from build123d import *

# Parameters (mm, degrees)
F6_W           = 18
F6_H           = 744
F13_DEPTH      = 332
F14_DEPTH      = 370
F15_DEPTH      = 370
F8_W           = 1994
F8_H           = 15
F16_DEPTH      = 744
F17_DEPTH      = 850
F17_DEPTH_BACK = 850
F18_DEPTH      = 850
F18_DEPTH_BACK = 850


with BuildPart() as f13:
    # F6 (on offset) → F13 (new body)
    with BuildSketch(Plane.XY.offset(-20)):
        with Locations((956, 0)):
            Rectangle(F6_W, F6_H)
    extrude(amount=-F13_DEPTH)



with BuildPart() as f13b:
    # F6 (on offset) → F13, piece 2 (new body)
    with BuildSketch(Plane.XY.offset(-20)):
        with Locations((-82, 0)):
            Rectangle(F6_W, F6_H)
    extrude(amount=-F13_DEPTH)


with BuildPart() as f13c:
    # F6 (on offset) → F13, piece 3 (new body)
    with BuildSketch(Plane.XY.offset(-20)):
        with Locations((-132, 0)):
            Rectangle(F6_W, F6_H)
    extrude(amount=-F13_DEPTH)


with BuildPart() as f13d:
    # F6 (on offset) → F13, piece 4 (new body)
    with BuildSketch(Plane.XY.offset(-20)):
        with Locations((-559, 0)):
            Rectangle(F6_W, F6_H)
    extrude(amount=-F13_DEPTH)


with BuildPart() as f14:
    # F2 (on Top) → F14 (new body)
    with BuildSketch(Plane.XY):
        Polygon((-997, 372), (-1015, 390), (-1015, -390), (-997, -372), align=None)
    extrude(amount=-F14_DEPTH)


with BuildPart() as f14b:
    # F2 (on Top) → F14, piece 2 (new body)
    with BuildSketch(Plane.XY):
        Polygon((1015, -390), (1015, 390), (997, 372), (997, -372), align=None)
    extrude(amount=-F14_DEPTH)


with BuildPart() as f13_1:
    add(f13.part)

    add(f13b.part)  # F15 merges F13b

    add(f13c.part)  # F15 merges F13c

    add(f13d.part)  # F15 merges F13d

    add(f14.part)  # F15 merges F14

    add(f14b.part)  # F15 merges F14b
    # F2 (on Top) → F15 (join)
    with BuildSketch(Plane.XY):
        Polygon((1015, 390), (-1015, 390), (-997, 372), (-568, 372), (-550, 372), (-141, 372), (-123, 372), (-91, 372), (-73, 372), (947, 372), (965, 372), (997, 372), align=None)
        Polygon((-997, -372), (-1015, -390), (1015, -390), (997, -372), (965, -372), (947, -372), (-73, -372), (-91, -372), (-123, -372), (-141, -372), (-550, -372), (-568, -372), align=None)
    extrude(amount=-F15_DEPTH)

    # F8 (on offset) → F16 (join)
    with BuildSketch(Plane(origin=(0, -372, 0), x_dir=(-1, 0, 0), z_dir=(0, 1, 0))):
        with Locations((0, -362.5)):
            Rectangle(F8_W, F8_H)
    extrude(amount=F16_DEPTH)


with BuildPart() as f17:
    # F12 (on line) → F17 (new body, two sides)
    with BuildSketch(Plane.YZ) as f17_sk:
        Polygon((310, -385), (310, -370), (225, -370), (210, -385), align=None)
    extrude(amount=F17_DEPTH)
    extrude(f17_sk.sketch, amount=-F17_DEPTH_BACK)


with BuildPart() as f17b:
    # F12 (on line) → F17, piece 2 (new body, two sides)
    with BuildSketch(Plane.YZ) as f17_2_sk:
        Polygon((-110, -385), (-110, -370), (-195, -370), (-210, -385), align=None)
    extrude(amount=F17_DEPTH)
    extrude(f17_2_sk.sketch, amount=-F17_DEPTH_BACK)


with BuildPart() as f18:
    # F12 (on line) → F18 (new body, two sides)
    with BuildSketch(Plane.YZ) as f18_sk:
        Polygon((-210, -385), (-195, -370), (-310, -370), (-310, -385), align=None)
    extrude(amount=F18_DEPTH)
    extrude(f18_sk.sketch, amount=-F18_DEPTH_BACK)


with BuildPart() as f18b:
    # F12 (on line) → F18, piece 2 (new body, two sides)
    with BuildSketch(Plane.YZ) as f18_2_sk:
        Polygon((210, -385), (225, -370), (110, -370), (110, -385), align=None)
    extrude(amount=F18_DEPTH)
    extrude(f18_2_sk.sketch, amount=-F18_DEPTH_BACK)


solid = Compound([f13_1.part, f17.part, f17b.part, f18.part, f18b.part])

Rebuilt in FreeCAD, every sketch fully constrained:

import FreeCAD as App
import Part
import Sketcher
from FreeCAD import Vector
Q = App.Units.Quantity


def add_polygon(sketch, points):
    """Adds a closed chain of lines whose ends are joined by coincident constraints."""
    first, n = sketch.GeometryCount, len(points)
    for a, b in zip(points, points[1:] + points[:1]):
        sketch.addGeometry(Part.LineSegment(App.Vector(*a, 0), App.Vector(*b, 0)), False)
    for i in range(n):
        sketch.addConstraint(Sketcher.Constraint("Coincident", first + i, 2, first + (i + 1) % n, 1))

doc = App.newDocument("Part")
params = doc.addObject("Spreadsheet::Sheet", "Params")
for row, (alias, value) in enumerate([
    ("sketch1_width", "18 mm"),
    ("sketch1_height", "744 mm"),
    ("pad1_length", "332 mm"),
    ("sketch2_width", "18 mm"),
    ("sketch2_height", "744 mm"),
    ("pad2_length", "332 mm"),
    ("sketch3_width", "18 mm"),
    ("sketch3_height", "744 mm"),
    ("pad3_length", "332 mm"),
    ("sketch4_width", "18 mm"),
    ("sketch4_height", "744 mm"),
    ("pad4_length", "332 mm"),
    ("sketch5_height", "780 mm"),
    ("sketch5_height2", "744 mm"),
    ("pad5_length", "370 mm"),
    ("sketch6_height", "780 mm"),
    ("sketch6_height2", "744 mm"),
    ("pad6_length", "370 mm"),
    ("sketch7_width", "2030 mm"),
    ("sketch7_width2", "1994 mm"),
    ("pad7_length", "370 mm"),
    ("sketch8_width", "1994 mm"),
    ("sketch8_height", "15 mm"),
    ("pad8_length", "744 mm"),
    ("sketch9_width", "85 mm"),
    ("sketch9_width2", "100 mm"),
    ("sketch9_height", "15 mm"),
    ("pad9_length", "850 mm"),
    ("pad9_length2", "850 mm"),
    ("sketch10_width", "85 mm"),
    ("sketch10_width2", "100 mm"),
    ("sketch10_height", "15 mm"),
    ("pad10_length", "850 mm"),
    ("pad10_length2", "850 mm"),
    ("sketch11_width", "115 mm"),
    ("sketch11_width2", "100 mm"),
    ("sketch11_height", "15 mm"),
    ("pad11_length", "850 mm"),
    ("pad11_length2", "850 mm"),
    ("sketch12_width", "115 mm"),
    ("sketch12_width2", "100 mm"),
    ("sketch12_height", "15 mm"),
    ("pad12_length", "850 mm"),
    ("pad12_length2", "850 mm"),
], start=1):
    params.set(f"A{row}", alias)
    params.set(f"B{row}", "=" + value)
    params.setAlias(f"B{row}", alias)

body = doc.addObject("PartDesign::Body", "Body")

# Sketch on XY plane
sketch1 = body.newObject("Sketcher::SketchObject", "Sketch")
sketch1.AttachmentSupport = (doc.getObject("XY_Plane"), [""])
sketch1.MapMode = "FlatFace"
sketch1.AttachmentOffset = App.Placement(Vector(0, 0, -20), App.Rotation())
add_polygon(sketch1, [(947, 372), (947, -372), (965, -372), (965, 372)])  # lines 0-3
sketch1.addConstraint(Sketcher.Constraint("Vertical", 0))
sketch1.addConstraint(Sketcher.Constraint("Horizontal", 1))
sketch1.addConstraint(Sketcher.Constraint("Vertical", 2))
sketch1.addConstraint(Sketcher.Constraint("Horizontal", 3))
sketch1.addConstraint(Sketcher.Constraint("DistanceX", 1, 1, 1, 2, Q("18 mm")))
sketch1.addConstraint(Sketcher.Constraint("DistanceY", 0, 2, 0, 1, Q("744 mm")))
sketch1.addConstraint(Sketcher.Constraint("DistanceX", -1, 1, 0, 2, Q("947 mm")))
sketch1.addConstraint(Sketcher.Constraint("DistanceY", 0, 2, -1, 1, Q("372 mm")))
sketch1.setExpression("Constraints[8]", "Params.sketch1_width")
sketch1.setExpression("Constraints[9]", "Params.sketch1_height")
pad1 = body.newObject("PartDesign::Pad", "Pad")
pad1.Profile = sketch1
pad1.setExpression("Length", "Params.pad1_length")
pad1.Reversed = True
body2 = doc.addObject("PartDesign::Body", "Body001")

# Sketch on XY plane
sketch2 = body2.newObject("Sketcher::SketchObject", "Sketch001")
sketch2.AttachmentSupport = (doc.getObject("XY_Plane001"), [""])
sketch2.MapMode = "FlatFace"
sketch2.AttachmentOffset = App.Placement(Vector(0, 0, -20), App.Rotation())
add_polygon(sketch2, [(-91, 372), (-91, -372), (-73, -372), (-73, 372)])  # lines 0-3
sketch2.addConstraint(Sketcher.Constraint("Vertical", 0))
sketch2.addConstraint(Sketcher.Constraint("Horizontal", 1))
sketch2.addConstraint(Sketcher.Constraint("Vertical", 2))
sketch2.addConstraint(Sketcher.Constraint("Horizontal", 3))
sketch2.addConstraint(Sketcher.Constraint("DistanceX", 1, 1, 1, 2, Q("18 mm")))
sketch2.addConstraint(Sketcher.Constraint("DistanceY", 0, 2, 0, 1, Q("744 mm")))
sketch2.addConstraint(Sketcher.Constraint("DistanceX", 0, 2, -1, 1, Q("91 mm")))
sketch2.addConstraint(Sketcher.Constraint("DistanceY", 0, 2, -1, 1, Q("372 mm")))
sketch2.setExpression("Constraints[8]", "Params.sketch2_width")
sketch2.setExpression("Constraints[9]", "Params.sketch2_height")
pad2 = body2.newObject("PartDesign::Pad", "Pad001")
pad2.Profile = sketch2
pad2.setExpression("Length", "Params.pad2_length")
pad2.Reversed = True
body3 = doc.addObject("PartDesign::Body", "Body002")

# Sketch on XY plane
sketch3 = body3.newObject("Sketcher::SketchObject", "Sketch002")
sketch3.AttachmentSupport = (doc.getObject("XY_Plane002"), [""])
sketch3.MapMode = "FlatFace"
sketch3.AttachmentOffset = App.Placement(Vector(0, 0, -20), App.Rotation())
add_polygon(sketch3, [(-141, 372), (-141, -372), (-123, -372), (-123, 372)])  # lines 0-3
sketch3.addConstraint(Sketcher.Constraint("Vertical", 0))
sketch3.addConstraint(Sketcher.Constraint("Horizontal", 1))
sketch3.addConstraint(Sketcher.Constraint("Vertical", 2))
sketch3.addConstraint(Sketcher.Constraint("Horizontal", 3))
sketch3.addConstraint(Sketcher.Constraint("DistanceX", 1, 1, 1, 2, Q("18 mm")))
sketch3.addConstraint(Sketcher.Constraint("DistanceY", 0, 2, 0, 1, Q("744 mm")))
sketch3.addConstraint(Sketcher.Constraint("DistanceX", 0, 2, -1, 1, Q("141 mm")))
sketch3.addConstraint(Sketcher.Constraint("DistanceY", 0, 2, -1, 1, Q("372 mm")))
sketch3.setExpression("Constraints[8]", "Params.sketch3_width")
sketch3.setExpression("Constraints[9]", "Params.sketch3_height")
pad3 = body3.newObject("PartDesign::Pad", "Pad002")
pad3.Profile = sketch3
pad3.setExpression("Length", "Params.pad3_length")
pad3.Reversed = True
body4 = doc.addObject("PartDesign::Body", "Body003")

# Sketch on XY plane
sketch4 = body4.newObject("Sketcher::SketchObject", "Sketch003")
sketch4.AttachmentSupport = (doc.getObject("XY_Plane003"), [""])
sketch4.MapMode = "FlatFace"
sketch4.AttachmentOffset = App.Placement(Vector(0, 0, -20), App.Rotation())
add_polygon(sketch4, [(-568, 372), (-568, -372), (-550, -372), (-550, 372)])  # lines 0-3
sketch4.addConstraint(Sketcher.Constraint("Vertical", 0))
sketch4.addConstraint(Sketcher.Constraint("Horizontal", 1))
sketch4.addConstraint(Sketcher.Constraint("Vertical", 2))
sketch4.addConstraint(Sketcher.Constraint("Horizontal", 3))
sketch4.addConstraint(Sketcher.Constraint("DistanceX", 1, 1, 1, 2, Q("18 mm")))
sketch4.addConstraint(Sketcher.Constraint("DistanceY", 0, 2, 0, 1, Q("744 mm")))
sketch4.addConstraint(Sketcher.Constraint("DistanceX", 0, 2, -1, 1, Q("568 mm")))
sketch4.addConstraint(Sketcher.Constraint("DistanceY", 0, 2, -1, 1, Q("372 mm")))
sketch4.setExpression("Constraints[8]", "Params.sketch4_width")
sketch4.setExpression("Constraints[9]", "Params.sketch4_height")
pad4 = body4.newObject("PartDesign::Pad", "Pad003")
pad4.Profile = sketch4
pad4.setExpression("Length", "Params.pad4_length")
pad4.Reversed = True
body5 = doc.addObject("PartDesign::Body", "Body004")

# Sketch on XY plane
sketch5 = body5.newObject("Sketcher::SketchObject", "Sketch004")
sketch5.AttachmentSupport = (doc.getObject("XY_Plane004"), [""])
sketch5.MapMode = "FlatFace"
add_polygon(sketch5, [(-997, 372), (-1015, 390), (-1015, -390), (-997, -372)])  # lines 0-3
sketch5.addConstraint(Sketcher.Constraint("Vertical", 1))
sketch5.addConstraint(Sketcher.Constraint("Vertical", 3))
sketch5.addConstraint(Sketcher.Constraint("Perpendicular", 0, 2))
sketch5.addConstraint(Sketcher.Constraint("Equal", 0, 2))
sketch5.addConstraint(Sketcher.Constraint("DistanceY", 1, 2, 1, 1, Q("780 mm")))
sketch5.addConstraint(Sketcher.Constraint("DistanceY", 3, 1, 3, 2, Q("744 mm")))
sketch5.addConstraint(Sketcher.Constraint("DistanceX", 0, 2, -1, 1, Q("1015 mm")))
sketch5.addConstraint(Sketcher.Constraint("DistanceY", -1, 1, 0, 2, Q("390 mm")))
sketch5.setExpression("Constraints[8]", "Params.sketch5_height")
sketch5.setExpression("Constraints[9]", "Params.sketch5_height2")
pad5 = body5.newObject("PartDesign::Pad", "Pad004")
pad5.Profile = sketch5
pad5.setExpression("Length", "Params.pad5_length")
pad5.Reversed = True
body6 = doc.addObject("PartDesign::Body", "Body005")

# Sketch on XY plane
sketch6 = body6.newObject("Sketcher::SketchObject", "Sketch005")
sketch6.AttachmentSupport = (doc.getObject("XY_Plane005"), [""])
sketch6.MapMode = "FlatFace"
add_polygon(sketch6, [(1015, -390), (1015, 390), (997, 372), (997, -372)])  # lines 0-3
sketch6.addConstraint(Sketcher.Constraint("Vertical", 0))
sketch6.addConstraint(Sketcher.Constraint("Vertical", 2))
sketch6.addConstraint(Sketcher.Constraint("Perpendicular", 1, 3))
sketch6.addConstraint(Sketcher.Constraint("Equal", 1, 3))
sketch6.addConstraint(Sketcher.Constraint("DistanceY", 0, 1, 0, 2, Q("780 mm")))
sketch6.addConstraint(Sketcher.Constraint("DistanceY", 2, 2, 2, 1, Q("744 mm")))
sketch6.addConstraint(Sketcher.Constraint("DistanceX", -1, 1, 0, 2, Q("1015 mm")))
sketch6.addConstraint(Sketcher.Constraint("DistanceY", -1, 1, 0, 2, Q("390 mm")))
sketch6.setExpression("Constraints[8]", "Params.sketch6_height")
sketch6.setExpression("Constraints[9]", "Params.sketch6_height2")
pad6 = body6.newObject("PartDesign::Pad", "Pad005")
pad6.Profile = sketch6
pad6.setExpression("Length", "Params.pad6_length")
pad6.Reversed = True
body.AllowCompound = True
doc.recompute()

boolean = body.newObject("PartDesign::Boolean", "Boolean")
boolean.Type = "Fuse"
boolean.addObjects([body2])
doc.recompute()

boolean2 = body.newObject("PartDesign::Boolean", "Boolean001")
boolean2.Type = "Fuse"
boolean2.addObjects([body3])
doc.recompute()

boolean3 = body.newObject("PartDesign::Boolean", "Boolean002")
boolean3.Type = "Fuse"
boolean3.addObjects([body4])
doc.recompute()

boolean4 = body.newObject("PartDesign::Boolean", "Boolean003")
boolean4.Type = "Fuse"
boolean4.addObjects([body5])
doc.recompute()

boolean5 = body.newObject("PartDesign::Boolean", "Boolean004")
boolean5.Type = "Fuse"
boolean5.addObjects([body6])

# Sketch on XY plane
sketch7 = body.newObject("Sketcher::SketchObject", "Sketch006")
sketch7.AttachmentSupport = (doc.getObject("XY_Plane"), [""])
sketch7.MapMode = "FlatFace"
add_polygon(sketch7, [(1015, 390), (-1015, 390), (-997, 372), (997, 372)])  # lines 0-3
add_polygon(sketch7, [(-997, -372), (-1015, -390), (1015, -390), (997, -372)])  # lines 4-7
sketch7.addConstraint(Sketcher.Constraint("Horizontal", 0))
sketch7.addConstraint(Sketcher.Constraint("Horizontal", 2))
sketch7.addConstraint(Sketcher.Constraint("Horizontal", 5))
sketch7.addConstraint(Sketcher.Constraint("Horizontal", 7))
sketch7.addConstraint(Sketcher.Constraint("Symmetric", 3, 2, 4, 2, -1, 1))
sketch7.addConstraint(Sketcher.Constraint("Symmetric", 1, 2, 6, 2, -1, 1))
sketch7.addConstraint(Sketcher.Constraint("Perpendicular", 1, 3))
sketch7.addConstraint(Sketcher.Constraint("Parallel", 3, 4))
sketch7.addConstraint(Sketcher.Constraint("Perpendicular", 4, 6))
sketch7.addConstraint(Sketcher.Constraint("Vertical", 0, 2, 4, 2))
sketch7.addConstraint(Sketcher.Constraint("Vertical", 2, 2, 6, 2))
sketch7.addConstraint(Sketcher.Constraint("DistanceX", 0, 2, 0, 1, Q("2030 mm")))
sketch7.addConstraint(Sketcher.Constraint("DistanceX", 2, 1, 2, 2, Q("1994 mm")))
sketch7.addConstraint(Sketcher.Constraint("DistanceY", -1, 1, 0, 2, Q("390 mm")))
sketch7.setExpression("Constraints[19]", "Params.sketch7_width")
sketch7.setExpression("Constraints[20]", "Params.sketch7_width2")
pad7 = body.newObject("PartDesign::Pad", "Pad006")
pad7.Profile = sketch7
pad7.setExpression("Length", "Params.pad7_length")
pad7.Reversed = True

# Sketch on XZ plane
sketch8 = body.newObject("Sketcher::SketchObject", "Sketch007")
sketch8.AttachmentSupport = (doc.getObject("XZ_Plane"), [""])
sketch8.MapMode = "FlatFace"
sketch8.AttachmentOffset = App.Placement(Vector(0, 0, 372), App.Rotation())
add_polygon(sketch8, [(997, -355), (997, -370), (-997, -370), (-997, -355)])  # lines 0-3
sketch8.addConstraint(Sketcher.Constraint("Vertical", 0))
sketch8.addConstraint(Sketcher.Constraint("Horizontal", 1))
sketch8.addConstraint(Sketcher.Constraint("Vertical", 2))
sketch8.addConstraint(Sketcher.Constraint("Horizontal", 3))
sketch8.addConstraint(Sketcher.Constraint("DistanceX", 1, 2, 1, 1, Q("1994 mm")))
sketch8.addConstraint(Sketcher.Constraint("DistanceY", 0, 2, 0, 1, Q("15 mm")))
sketch8.addConstraint(Sketcher.Constraint("DistanceX", -1, 1, 0, 2, Q("997 mm")))
sketch8.addConstraint(Sketcher.Constraint("DistanceY", 0, 2, -1, 1, Q("370 mm")))
sketch8.setExpression("Constraints[8]", "Params.sketch8_width")
sketch8.setExpression("Constraints[9]", "Params.sketch8_height")
pad8 = body.newObject("PartDesign::Pad", "Pad007")
pad8.Profile = sketch8
pad8.setExpression("Length", "Params.pad8_length")
pad8.Reversed = True
body7 = doc.addObject("PartDesign::Body", "Body006")

# Sketch on YZ plane
sketch9 = body7.newObject("Sketcher::SketchObject", "Sketch008")
sketch9.AttachmentSupport = (doc.getObject("YZ_Plane006"), [""])
sketch9.MapMode = "FlatFace"
add_polygon(sketch9, [(310, -385), (310, -370), (225, -370), (210, -385)])  # lines 0-3
sketch9.addConstraint(Sketcher.Constraint("Vertical", 0))
sketch9.addConstraint(Sketcher.Constraint("Horizontal", 1))
sketch9.addConstraint(Sketcher.Constraint("Horizontal", 3))
sketch9.addConstraint(Sketcher.Constraint("DistanceX", 1, 2, 1, 1, Q("85 mm")))
sketch9.addConstraint(Sketcher.Constraint("DistanceX", 3, 1, 3, 2, Q("100 mm")))
sketch9.addConstraint(Sketcher.Constraint("DistanceY", 0, 1, 0, 2, Q("15 mm")))
sketch9.addConstraint(Sketcher.Constraint("DistanceX", -1, 1, 0, 2, Q("310 mm")))
sketch9.addConstraint(Sketcher.Constraint("DistanceY", 0, 2, -1, 1, Q("370 mm")))
sketch9.setExpression("Constraints[7]", "Params.sketch9_width")
sketch9.setExpression("Constraints[8]", "Params.sketch9_width2")
sketch9.setExpression("Constraints[9]", "Params.sketch9_height")
pad9 = body7.newObject("PartDesign::Pad", "Pad008")
pad9.Profile = sketch9
pad9.Type = "TwoLengths"
pad9.setExpression("Length", "Params.pad9_length")
pad9.setExpression("Length2", "Params.pad9_length2")
body8 = doc.addObject("PartDesign::Body", "Body007")

# Sketch on YZ plane
sketch10 = body8.newObject("Sketcher::SketchObject", "Sketch009")
sketch10.AttachmentSupport = (doc.getObject("YZ_Plane007"), [""])
sketch10.MapMode = "FlatFace"
add_polygon(sketch10, [(-110, -385), (-110, -370), (-195, -370), (-210, -385)])  # lines 0-3
sketch10.addConstraint(Sketcher.Constraint("Vertical", 0))
sketch10.addConstraint(Sketcher.Constraint("Horizontal", 1))
sketch10.addConstraint(Sketcher.Constraint("Horizontal", 3))
sketch10.addConstraint(Sketcher.Constraint("DistanceX", 1, 2, 1, 1, Q("85 mm")))
sketch10.addConstraint(Sketcher.Constraint("DistanceX", 3, 1, 3, 2, Q("100 mm")))
sketch10.addConstraint(Sketcher.Constraint("DistanceY", 0, 1, 0, 2, Q("15 mm")))
sketch10.addConstraint(Sketcher.Constraint("DistanceX", 0, 2, -1, 1, Q("110 mm")))
sketch10.addConstraint(Sketcher.Constraint("DistanceY", 0, 2, -1, 1, Q("370 mm")))
sketch10.setExpression("Constraints[7]", "Params.sketch10_width")
sketch10.setExpression("Constraints[8]", "Params.sketch10_width2")
sketch10.setExpression("Constraints[9]", "Params.sketch10_height")
pad10 = body8.newObject("PartDesign::Pad", "Pad009")
pad10.Profile = sketch10
pad10.Type = "TwoLengths"
pad10.setExpression("Length", "Params.pad10_length")
pad10.setExpression("Length2", "Params.pad10_length2")
body9 = doc.addObject("PartDesign::Body", "Body008")

# Sketch on YZ plane
sketch11 = body9.newObject("Sketcher::SketchObject", "Sketch010")
sketch11.AttachmentSupport = (doc.getObject("YZ_Plane008"), [""])
sketch11.MapMode = "FlatFace"
add_polygon(sketch11, [(-210, -385), (-195, -370), (-310, -370), (-310, -385)])  # lines 0-3
sketch11.addConstraint(Sketcher.Constraint("Horizontal", 1))
sketch11.addConstraint(Sketcher.Constraint("Vertical", 2))
sketch11.addConstraint(Sketcher.Constraint("Horizontal", 3))
sketch11.addConstraint(Sketcher.Constraint("DistanceX", 1, 2, 1, 1, Q("115 mm")))
sketch11.addConstraint(Sketcher.Constraint("DistanceX", 3, 1, 3, 2, Q("100 mm")))
sketch11.addConstraint(Sketcher.Constraint("DistanceY", 2, 2, 2, 1, Q("15 mm")))
sketch11.addConstraint(Sketcher.Constraint("DistanceX", 0, 2, -1, 1, Q("195 mm")))
sketch11.addConstraint(Sketcher.Constraint("DistanceY", 0, 2, -1, 1, Q("370 mm")))
sketch11.setExpression("Constraints[7]", "Params.sketch11_width")
sketch11.setExpression("Constraints[8]", "Params.sketch11_width2")
sketch11.setExpression("Constraints[9]", "Params.sketch11_height")
pad11 = body9.newObject("PartDesign::Pad", "Pad010")
pad11.Profile = sketch11
pad11.Type = "TwoLengths"
pad11.setExpression("Length", "Params.pad11_length")
pad11.setExpression("Length2", "Params.pad11_length2")
body10 = doc.addObject("PartDesign::Body", "Body009")

# Sketch on YZ plane
sketch12 = body10.newObject("Sketcher::SketchObject", "Sketch011")
sketch12.AttachmentSupport = (doc.getObject("YZ_Plane009"), [""])
sketch12.MapMode = "FlatFace"
add_polygon(sketch12, [(210, -385), (225, -370), (110, -370), (110, -385)])  # lines 0-3
sketch12.addConstraint(Sketcher.Constraint("Horizontal", 1))
sketch12.addConstraint(Sketcher.Constraint("Vertical", 2))
sketch12.addConstraint(Sketcher.Constraint("Horizontal", 3))
sketch12.addConstraint(Sketcher.Constraint("DistanceX", 1, 2, 1, 1, Q("115 mm")))
sketch12.addConstraint(Sketcher.Constraint("DistanceX", 3, 1, 3, 2, Q("100 mm")))
sketch12.addConstraint(Sketcher.Constraint("DistanceY", 2, 2, 2, 1, Q("15 mm")))
sketch12.addConstraint(Sketcher.Constraint("DistanceX", -1, 1, 0, 2, Q("225 mm")))
sketch12.addConstraint(Sketcher.Constraint("DistanceY", 0, 2, -1, 1, Q("370 mm")))
sketch12.setExpression("Constraints[7]", "Params.sketch12_width")
sketch12.setExpression("Constraints[8]", "Params.sketch12_width2")
sketch12.setExpression("Constraints[9]", "Params.sketch12_height")
pad12 = body10.newObject("PartDesign::Pad", "Pad011")
pad12.Profile = sketch12
pad12.Type = "TwoLengths"
pad12.setExpression("Length", "Params.pad12_length")
pad12.setExpression("Length2", "Params.pad12_length2")

doc.recompute()
